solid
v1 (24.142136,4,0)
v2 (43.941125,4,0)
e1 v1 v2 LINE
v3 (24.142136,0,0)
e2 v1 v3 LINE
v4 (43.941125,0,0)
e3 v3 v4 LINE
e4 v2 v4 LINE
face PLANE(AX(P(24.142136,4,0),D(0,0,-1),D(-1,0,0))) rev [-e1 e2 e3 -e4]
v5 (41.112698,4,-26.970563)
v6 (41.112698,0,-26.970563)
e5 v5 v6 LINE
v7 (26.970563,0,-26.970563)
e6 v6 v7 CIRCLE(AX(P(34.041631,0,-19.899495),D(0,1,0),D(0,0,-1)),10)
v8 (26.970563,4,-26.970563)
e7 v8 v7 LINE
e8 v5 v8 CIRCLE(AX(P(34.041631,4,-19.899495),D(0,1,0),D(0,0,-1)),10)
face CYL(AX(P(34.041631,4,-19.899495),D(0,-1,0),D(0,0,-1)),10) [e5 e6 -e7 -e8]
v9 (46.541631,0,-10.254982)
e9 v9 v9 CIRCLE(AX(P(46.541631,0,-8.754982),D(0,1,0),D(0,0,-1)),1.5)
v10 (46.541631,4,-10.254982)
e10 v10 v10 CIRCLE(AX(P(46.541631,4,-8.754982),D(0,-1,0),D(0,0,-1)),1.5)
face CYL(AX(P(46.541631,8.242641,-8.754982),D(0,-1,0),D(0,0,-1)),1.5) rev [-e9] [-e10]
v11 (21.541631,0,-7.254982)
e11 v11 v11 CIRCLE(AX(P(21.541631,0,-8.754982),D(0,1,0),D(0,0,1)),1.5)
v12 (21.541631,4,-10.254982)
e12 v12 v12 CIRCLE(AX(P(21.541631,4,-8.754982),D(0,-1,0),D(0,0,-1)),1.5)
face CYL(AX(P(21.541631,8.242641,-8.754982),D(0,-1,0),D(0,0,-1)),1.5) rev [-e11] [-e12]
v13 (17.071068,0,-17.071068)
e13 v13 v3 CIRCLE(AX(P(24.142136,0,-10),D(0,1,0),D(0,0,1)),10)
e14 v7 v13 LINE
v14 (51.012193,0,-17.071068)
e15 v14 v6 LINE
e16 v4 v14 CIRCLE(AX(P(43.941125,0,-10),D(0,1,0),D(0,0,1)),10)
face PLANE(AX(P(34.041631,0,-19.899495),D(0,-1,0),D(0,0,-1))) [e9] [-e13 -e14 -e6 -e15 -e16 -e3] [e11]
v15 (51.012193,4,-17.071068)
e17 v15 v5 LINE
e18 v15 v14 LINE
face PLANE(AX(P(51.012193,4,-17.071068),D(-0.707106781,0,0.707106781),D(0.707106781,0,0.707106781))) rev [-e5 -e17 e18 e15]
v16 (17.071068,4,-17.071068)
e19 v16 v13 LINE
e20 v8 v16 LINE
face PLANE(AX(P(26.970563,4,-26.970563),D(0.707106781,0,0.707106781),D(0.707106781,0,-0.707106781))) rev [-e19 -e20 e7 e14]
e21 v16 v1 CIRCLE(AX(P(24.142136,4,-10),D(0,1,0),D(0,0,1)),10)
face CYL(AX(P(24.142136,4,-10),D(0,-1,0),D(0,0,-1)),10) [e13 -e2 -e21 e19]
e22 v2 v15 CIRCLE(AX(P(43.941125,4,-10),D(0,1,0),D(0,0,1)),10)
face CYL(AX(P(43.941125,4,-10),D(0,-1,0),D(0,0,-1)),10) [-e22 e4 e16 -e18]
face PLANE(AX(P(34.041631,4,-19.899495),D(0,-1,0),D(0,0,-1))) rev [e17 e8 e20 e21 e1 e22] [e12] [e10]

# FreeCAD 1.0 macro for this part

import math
import FreeCAD as App
import Part
import Sketcher

doc = App.newDocument("Part")
body = doc.addObject("PartDesign::Body", "Body")

sketch1 = body.newObject("Sketcher::SketchObject", "Sketch")
sketch1.AttachmentSupport = (doc.getObject("XZ_Plane"), [""])
sketch1.MapMode = "FlatFace"
sketch1.addGeometry([
    Part.LineSegment(App.Vector(27, -27, 0), App.Vector(17, -17, 0)),
    Part.ArcOfCircle(Part.Circle(App.Vector(24, -10, 0), App.Vector(0, 0, 1), 10), math.radians(90), math.radians(225)),
    Part.LineSegment(App.Vector(24, 0, 0), App.Vector(44, 0, 0)),
    Part.ArcOfCircle(Part.Circle(App.Vector(44, -10, 0), App.Vector(0, 0, 1), 10), math.radians(-45), math.radians(90)),
    Part.LineSegment(App.Vector(51, -17, 0), App.Vector(41, -27, 0)),
    Part.ArcOfCircle(Part.Circle(App.Vector(34, -20, 0), App.Vector(0, 0, 1), 10), math.radians(-135), math.radians(-45)),
], False)
sketch1.addConstraint([
    Sketcher.Constraint("Tangent", 0, 2, 1, 2),
    Sketcher.Constraint("Tangent", 1, 1, 2, 1),
    Sketcher.Constraint("Tangent", 2, 2, 3, 2),
    Sketcher.Constraint("Tangent", 3, 1, 4, 1),
    Sketcher.Constraint("Tangent", 4, 2, 5, 2),
    Sketcher.Constraint("Tangent", 5, 1, 0, 1),
    Sketcher.Constraint("Horizontal", 2),
    Sketcher.Constraint("Equal", 1, 3),
    Sketcher.Constraint("Equal", 3, 5),
    Sketcher.Constraint("PointOnObject", 1, 1, -1),
    Sketcher.Constraint("Perpendicular", 0, 4),
    Sketcher.Constraint("Horizontal", 0, 2, 3, 1),
    Sketcher.Constraint("Radius", 1, 10.0),
    Sketcher.Constraint("Distance", 0, 14.0),
    Sketcher.Constraint("DistanceX", -1, 1, 4, 2, 41.112698),
])
pad1 = body.newObject("PartDesign::Pad", "Pad")
pad1.Profile = sketch1
pad1.Length = 4
pad1.Reversed = True

sketch2 = body.newObject("Sketcher::SketchObject", "Sketch001")
sketch2.AttachmentSupport = (doc.getObject("XZ_Plane"), [""])
sketch2.MapMode = "FlatFace"
sketch2.addGeometry([
    Part.Circle(App.Vector(21.5, -8.8, 0), App.Vector(0, 0, 1), 1.5),
    Part.Circle(App.Vector(46.5, -8.8, 0), App.Vector(0, 0, 1), 1.5),
], False)
sketch2.addConstraint([
    Sketcher.Constraint("Equal", 0, 1),
    Sketcher.Constraint("Horizontal", 0, 3, 1, 3),
    Sketcher.Constraint("Diameter", 0, 3.0),
    Sketcher.Constraint("DistanceX", 0, 3, 1, 3, 25.0),
    Sketcher.Constraint("DistanceX", -1, 1, 0, 3, 21.541631),
    Sketcher.Constraint("DistanceY", 0, 3, -1, 1, 8.754982),
])
pocket1 = body.newObject("PartDesign::Pocket", "Pocket")
pocket1.Profile = sketch2
pocket1.Length = 4

doc.recompute()
